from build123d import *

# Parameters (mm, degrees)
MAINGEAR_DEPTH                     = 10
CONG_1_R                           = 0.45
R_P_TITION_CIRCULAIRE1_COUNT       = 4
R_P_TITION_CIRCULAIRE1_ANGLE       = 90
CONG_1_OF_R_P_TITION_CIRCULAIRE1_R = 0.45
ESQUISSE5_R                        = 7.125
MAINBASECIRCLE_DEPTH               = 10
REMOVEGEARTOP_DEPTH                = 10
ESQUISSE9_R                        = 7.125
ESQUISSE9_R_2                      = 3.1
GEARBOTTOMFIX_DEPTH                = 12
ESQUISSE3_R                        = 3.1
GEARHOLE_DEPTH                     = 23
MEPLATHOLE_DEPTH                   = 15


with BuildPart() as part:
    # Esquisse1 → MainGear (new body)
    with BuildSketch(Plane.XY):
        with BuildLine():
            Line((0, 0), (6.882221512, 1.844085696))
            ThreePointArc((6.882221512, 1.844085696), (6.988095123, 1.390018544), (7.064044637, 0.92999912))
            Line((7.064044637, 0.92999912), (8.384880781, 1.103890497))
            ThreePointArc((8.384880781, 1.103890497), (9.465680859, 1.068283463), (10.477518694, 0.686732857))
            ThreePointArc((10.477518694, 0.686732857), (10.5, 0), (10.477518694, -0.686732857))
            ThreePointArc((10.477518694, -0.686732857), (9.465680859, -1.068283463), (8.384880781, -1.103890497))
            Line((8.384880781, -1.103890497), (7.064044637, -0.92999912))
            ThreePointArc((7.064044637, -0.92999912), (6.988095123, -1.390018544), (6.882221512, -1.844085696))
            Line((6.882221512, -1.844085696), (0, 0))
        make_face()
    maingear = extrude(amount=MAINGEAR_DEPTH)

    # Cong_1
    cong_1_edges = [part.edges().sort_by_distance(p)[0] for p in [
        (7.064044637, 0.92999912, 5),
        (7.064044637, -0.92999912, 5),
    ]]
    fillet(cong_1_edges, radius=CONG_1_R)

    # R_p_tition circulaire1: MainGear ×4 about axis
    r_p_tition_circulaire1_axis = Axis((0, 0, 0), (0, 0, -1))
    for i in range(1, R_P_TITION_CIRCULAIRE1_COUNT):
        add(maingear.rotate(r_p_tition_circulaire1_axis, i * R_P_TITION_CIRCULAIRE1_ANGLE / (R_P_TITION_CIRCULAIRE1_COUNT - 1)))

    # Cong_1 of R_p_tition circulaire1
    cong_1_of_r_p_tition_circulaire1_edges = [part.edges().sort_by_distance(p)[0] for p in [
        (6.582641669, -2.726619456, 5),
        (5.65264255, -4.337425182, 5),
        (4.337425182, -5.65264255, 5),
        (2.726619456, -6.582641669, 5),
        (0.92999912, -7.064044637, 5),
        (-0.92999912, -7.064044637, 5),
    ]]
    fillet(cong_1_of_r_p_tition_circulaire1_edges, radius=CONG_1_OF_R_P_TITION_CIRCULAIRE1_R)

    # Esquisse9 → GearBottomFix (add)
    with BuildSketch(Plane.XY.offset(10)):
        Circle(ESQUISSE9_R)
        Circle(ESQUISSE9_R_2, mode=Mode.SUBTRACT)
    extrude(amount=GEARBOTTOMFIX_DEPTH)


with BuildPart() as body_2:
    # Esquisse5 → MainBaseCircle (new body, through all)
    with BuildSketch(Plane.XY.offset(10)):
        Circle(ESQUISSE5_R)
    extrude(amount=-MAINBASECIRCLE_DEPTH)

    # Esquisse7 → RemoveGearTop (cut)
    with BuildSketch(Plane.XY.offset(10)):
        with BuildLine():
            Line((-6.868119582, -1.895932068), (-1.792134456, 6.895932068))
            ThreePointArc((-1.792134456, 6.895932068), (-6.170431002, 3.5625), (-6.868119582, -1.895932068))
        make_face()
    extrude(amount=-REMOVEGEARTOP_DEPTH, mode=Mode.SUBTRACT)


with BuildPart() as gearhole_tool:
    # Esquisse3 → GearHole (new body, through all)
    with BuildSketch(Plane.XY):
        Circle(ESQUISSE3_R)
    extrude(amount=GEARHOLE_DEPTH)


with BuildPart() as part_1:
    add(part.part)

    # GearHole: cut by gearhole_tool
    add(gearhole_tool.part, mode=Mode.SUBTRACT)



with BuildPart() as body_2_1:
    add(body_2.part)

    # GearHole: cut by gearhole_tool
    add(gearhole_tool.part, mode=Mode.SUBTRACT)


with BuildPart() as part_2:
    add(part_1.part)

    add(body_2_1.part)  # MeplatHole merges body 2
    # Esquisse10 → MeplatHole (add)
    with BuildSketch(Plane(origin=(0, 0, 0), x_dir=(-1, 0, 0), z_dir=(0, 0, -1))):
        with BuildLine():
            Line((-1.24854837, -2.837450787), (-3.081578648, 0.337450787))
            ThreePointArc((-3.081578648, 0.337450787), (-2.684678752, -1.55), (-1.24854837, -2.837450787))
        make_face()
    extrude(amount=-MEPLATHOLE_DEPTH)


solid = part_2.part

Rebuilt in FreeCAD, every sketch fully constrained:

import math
import FreeCAD as App
import Part
import Sketcher
from FreeCAD import Vector
Q = App.Units.Quantity


def edges_at(feature, points):
    """Names of the edges that pass closest to the given points."""
    edges = feature.Shape.Edges
    near = lambda p: min(range(len(edges)), key=lambda i: edges[i].distToShape(Part.Vertex(*p))[0])
    return sorted({f"Edge{near(p) + 1}" for p in points})

doc = App.newDocument("Part")
params = doc.addObject("Spreadsheet::Sheet", "Params")
for row, (alias, value) in enumerate([
    ("sketch1_radius", "10.5 mm"),
    ("pad1_length", "10 mm"),
    ("fillet_radius", "0.45 mm"),
    ("fillet2_radius", "0.45 mm"),
    ("sketch2_diameter", "6.2 mm"),
    ("sketch2_diameter2", "14.25 mm"),
    ("pad2_length", "12 mm"),
    ("sketch3_diameter", "14.25 mm"),
    ("pad3_length", "10 mm"),
    ("pocket1_length", "10 mm"),
    ("sketch5_diameter", "6.2 mm"),
    ("pad4_length", "23 mm"),
    ("sketch6_radius", "3.1 mm"),
    ("pad5_length", "15 mm"),
], start=1):
    params.set(f"A{row}", alias)
    params.set(f"B{row}", "=" + value)
    params.setAlias(f"B{row}", alias)

body = doc.addObject("PartDesign::Body", "Body")

# Sketch on XY plane
sketch1 = body.newObject("Sketcher::SketchObject", "Sketch")
sketch1.AttachmentSupport = (doc.getObject("XY_Plane"), [""])
sketch1.MapMode = "FlatFace"
sketch1.addGeometry(Part.LineSegment(Vector(6.9, 1.8, 0), Vector(0, 0, 0)), False)
sketch1.addGeometry(Part.LineSegment(Vector(0, 0, 0), Vector(6.9, -1.8, 0)), False)
sketch1.addGeometry(Part.ArcOfCircle(Part.Circle(Vector(0, 0, 0), Vector(0, 0, 1), 7.1), math.radians(-15), math.radians(-7.5)), False)
sketch1.addGeometry(Part.LineSegment(Vector(7.1, -0.9, 0), Vector(8.4, -1.1, 0)), False)
sketch1.addGeometry(Part.ArcOfCircle(Part.Circle(Vector(8.8, 2.2, 0), Vector(0, 0, 1), 3.3), math.radians(-98), math.radians(-60)), False)
sketch1.addGeometry(Part.ArcOfCircle(Part.Circle(Vector(0, 0, 0), Vector(0, 0, 1), 10.5), math.radians(-3.75), math.radians(3.75)), False)
sketch1.addGeometry(Part.ArcOfCircle(Part.Circle(Vector(8.8, -2.2, 0), Vector(0, 0, 1), 3.3), math.radians(60), math.radians(98)), False)
sketch1.addGeometry(Part.LineSegment(Vector(8.4, 1.1, 0), Vector(7.1, 0.9, 0)), False)
sketch1.addGeometry(Part.ArcOfCircle(Part.Circle(Vector(0, 0, 0), Vector(0, 0, 1), 7.1), math.radians(7.5), math.radians(15)), False)
sketch1.addConstraint(Sketcher.Constraint("Coincident", 0, 2, 1, 1))
sketch1.addConstraint(Sketcher.Constraint("Coincident", 1, 2, 2, 1))
sketch1.addConstraint(Sketcher.Constraint("Coincident", 2, 2, 3, 1))
sketch1.addConstraint(Sketcher.Constraint("Tangent", 3, 2, 4, 1))
sketch1.addConstraint(Sketcher.Constraint("Coincident", 4, 2, 5, 1))
sketch1.addConstraint(Sketcher.Constraint("Coincident", 5, 2, 6, 1))
sketch1.addConstraint(Sketcher.Constraint("Tangent", 6, 2, 7, 1))
sketch1.addConstraint(Sketcher.Constraint("Coincident", 7, 2, 8, 1))
sketch1.addConstraint(Sketcher.Constraint("Coincident", 8, 2, 0, 1))
sketch1.addConstraint(Sketcher.Constraint("Coincident", 2, 3, -1, 1))
sketch1.addConstraint(Sketcher.Constraint("Coincident", 5, 3, -1, 1))
sketch1.addConstraint(Sketcher.Constraint("Coincident", 8, 3, -1, 1))
sketch1.addConstraint(Sketcher.Constraint("Coincident", 0, 2, -1, 1))
sketch1.addConstraint(Sketcher.Constraint("Equal", 4, 6))
sketch1.addConstraint(Sketcher.Constraint("Equal", 2, 8))
sketch1.addConstraint(Sketcher.Constraint("Symmetric", 4, 3, 6, 3, -1))
sketch1.addConstraint(Sketcher.Constraint("Vertical", 3, 2, 6, 2))
sketch1.addConstraint(Sketcher.Constraint("Vertical", 1, 2, 8, 2))
sketch1.addConstraint(Sketcher.Constraint("Radius", 5, Q("10.5 mm")))
sketch1.addConstraint(Sketcher.Constraint("Angle", 0, Q("-165 deg")))
sketch1.addConstraint(Sketcher.Constraint("Angle", 3, Q("-7.5 deg")))
sketch1.addConstraint(Sketcher.Constraint("Radius", 2, Q("7.125 mm")))
sketch1.addConstraint(Sketcher.Constraint("DistanceY", 2, 2, -1, 1, Q("0.929999 mm")))
sketch1.addConstraint(Sketcher.Constraint("Radius", 4, Q("3.315084 mm")))
sketch1.addConstraint(Sketcher.Constraint("DistanceY", 6, 3, 4, 2, Q("1.496099 mm")))
sketch1.setExpression("Constraints[18]", "Params.sketch1_radius")
pad1 = body.newObject("PartDesign::Pad", "Pad")
pad1.Profile = sketch1
pad1.setExpression("Length", "Params.pad1_length")
doc.recompute()

fillet = body.newObject("PartDesign::Fillet", "Fillet")
fillet.Base = (pad1, edges_at(pad1, [(7.064, 0.93, 5), (7.064, -0.93, 5)]))
fillet.setExpression("Radius", "Params.fillet_radius")
doc.recompute()

polarpattern = body.newObject("PartDesign::PolarPattern", "PolarPattern")
polarpattern.Originals = [pad1]
polarpattern.Axis = (doc.getObject("Z_Axis"), [""])
polarpattern.Angle = 90
polarpattern.Occurrences = 4
polarpattern.Reversed = True
body.Tip = polarpattern
doc.recompute()

fillet2 = body.newObject("PartDesign::Fillet", "Fillet001")
fillet2.Base = (polarpattern, edges_at(polarpattern, [
    (6.583, -2.727, 5),
    (5.653, -4.337, 5),
    (4.337, -5.653, 5),
    (2.727, -6.583, 5),
    (0.93, -7.064, 5),
    (-0.93, -7.064, 5),
]))
fillet2.setExpression("Radius", "Params.fillet2_radius")

# Sketch on XY plane
sketch2 = body.newObject("Sketcher::SketchObject", "Sketch001")
sketch2.AttachmentSupport = (doc.getObject("XY_Plane"), [""])
sketch2.MapMode = "FlatFace"
sketch2.AttachmentOffset = App.Placement(Vector(0, 0, 10), App.Rotation())
sketch2.addGeometry(Part.Circle(Vector(0, 0, 0), Vector(0, 0, 1), 7.1), False)
sketch2.addGeometry(Part.Circle(Vector(0, 0, 0), Vector(0, 0, 1), 3.1), False)
sketch2.addConstraint(Sketcher.Constraint("Coincident", 0, 3, -1, 1))
sketch2.addConstraint(Sketcher.Constraint("Coincident", 1, 3, -1, 1))
sketch2.addConstraint(Sketcher.Constraint("Diameter", 1, Q("6.2 mm")))
sketch2.addConstraint(Sketcher.Constraint("Diameter", 0, Q("14.25 mm")))
sketch2.setExpression("Constraints[2]", "Params.sketch2_diameter")
sketch2.setExpression("Constraints[3]", "Params.sketch2_diameter2")
pad2 = body.newObject("PartDesign::Pad", "Pad001")
pad2.Profile = sketch2
pad2.setExpression("Length", "Params.pad2_length")
body2 = doc.addObject("PartDesign::Body", "Body001")

# Sketch on XY plane
sketch3 = body2.newObject("Sketcher::SketchObject", "Sketch002")
sketch3.AttachmentSupport = (doc.getObject("XY_Plane001"), [""])
sketch3.MapMode = "FlatFace"
sketch3.AttachmentOffset = App.Placement(Vector(0, 0, 10), App.Rotation())
sketch3.addGeometry(Part.Circle(Vector(0, 0, 0), Vector(0, 0, 1), 7), False)
sketch3.addConstraint(Sketcher.Constraint("Coincident", 0, 3, -1, 1))
sketch3.addConstraint(Sketcher.Constraint("Diameter", 0, Q("14.25 mm")))
sketch3.setExpression("Constraints[1]", "Params.sketch3_diameter")
pad3 = body2.newObject("PartDesign::Pad", "Pad002")
pad3.Profile = sketch3
pad3.setExpression("Length", "Params.pad3_length")
pad3.Reversed = True

# Sketch on XY plane
sketch4 = body2.newObject("Sketcher::SketchObject", "Sketch003")
sketch4.AttachmentSupport = (doc.getObject("XY_Plane001"), [""])
sketch4.MapMode = "FlatFace"
sketch4.AttachmentOffset = App.Placement(Vector(0, 0, 10), App.Rotation())
sketch4.addGeometry(Part.LineSegment(Vector(-7, -2, 0), Vector(-2, 7, 0)), False)
sketch4.addGeometry(Part.ArcOfCircle(Part.Circle(Vector(0, 0, 0), Vector(0, 0, 1), 7), math.radians(105), math.radians(195)), False)
sketch4.addConstraint(Sketcher.Constraint("Coincident", 0, 1, 1, 2))
sketch4.addConstraint(Sketcher.Constraint("Coincident", 1, 1, 0, 2))
sketch4.addConstraint(Sketcher.Constraint("Coincident", 1, 3, -1, 1))
sketch4.addConstraint(Sketcher.Constraint("Angle", 0, Q("60 deg")))
sketch4.addConstraint(Sketcher.Constraint("Radius", 1, Q("7.125 mm")))
sketch4.addConstraint(Sketcher.Constraint("Distance", 0, Q("10.15197 mm")))
pocket1 = body2.newObject("PartDesign::Pocket", "Pocket")
pocket1.Profile = sketch4
pocket1.setExpression("Length", "Params.pocket1_length")
body3 = doc.addObject("PartDesign::Body", "Body002")

# Sketch on XY plane
sketch5 = body3.newObject("Sketcher::SketchObject", "Sketch004")
sketch5.AttachmentSupport = (doc.getObject("XY_Plane002"), [""])
sketch5.MapMode = "FlatFace"
sketch5.addGeometry(Part.Circle(Vector(0, 0, 0), Vector(0, 0, 1), 3.1), False)
sketch5.addConstraint(Sketcher.Constraint("Coincident", 0, 3, -1, 1))
sketch5.addConstraint(Sketcher.Constraint("Diameter", 0, Q("6.2 mm")))
sketch5.setExpression("Constraints[1]", "Params.sketch5_diameter")
pad4 = body3.newObject("PartDesign::Pad", "Pad003")
pad4.Profile = sketch5
pad4.setExpression("Length", "Params.pad4_length")
doc.recompute()

body4 = doc.addObject("PartDesign::Body", "Body003")
body4.BaseFeature = body3
boolean = body.newObject("PartDesign::Boolean", "Boolean")
boolean.Type = "Cut"
boolean.addObjects([body4])
doc.recompute()

boolean2 = body2.newObject("PartDesign::Boolean", "Boolean001")
boolean2.Type = "Cut"
boolean2.addObjects([body3])
doc.recompute()

boolean3 = body.newObject("PartDesign::Boolean", "Boolean002")
boolean3.Type = "Fuse"
boolean3.addObjects([body2])

# Sketch on XY plane
sketch6 = body.newObject("Sketcher::SketchObject", "Sketch005")
sketch6.AttachmentSupport = (doc.getObject("XY_Plane"), [""])
sketch6.MapMode = "FlatFace"
sketch6.addGeometry(Part.LineSegment(Vector(1.2, -2.8, 0), Vector(3.1, 0.3, 0)), False)
sketch6.addGeometry(Part.ArcOfCircle(Part.Circle(Vector(0, 0, 0), Vector(0, 0, 1), 3.1), math.radians(-66), math.radians(6)), False)
sketch6.addConstraint(Sketcher.Constraint("Coincident", 0, 1, 1, 1))
sketch6.addConstraint(Sketcher.Constraint("Coincident", 1, 2, 0, 2))
sketch6.addConstraint(Sketcher.Constraint("Coincident", 1, 3, -1, 1))
sketch6.addConstraint(Sketcher.Constraint("Radius", 1, Q("3.1 mm")))
sketch6.addConstraint(Sketcher.Constraint("Angle", 0, Q("60 deg")))
sketch6.addConstraint(Sketcher.Constraint("DistanceY", 0, 1, 1, 2, Q("3.174902 mm")))
sketch6.setExpression("Constraints[3]", "Params.sketch6_radius")
pad5 = body.newObject("PartDesign::Pad", "Pad004")
pad5.Profile = sketch6
pad5.setExpression("Length", "Params.pad5_length")

doc.recompute()
